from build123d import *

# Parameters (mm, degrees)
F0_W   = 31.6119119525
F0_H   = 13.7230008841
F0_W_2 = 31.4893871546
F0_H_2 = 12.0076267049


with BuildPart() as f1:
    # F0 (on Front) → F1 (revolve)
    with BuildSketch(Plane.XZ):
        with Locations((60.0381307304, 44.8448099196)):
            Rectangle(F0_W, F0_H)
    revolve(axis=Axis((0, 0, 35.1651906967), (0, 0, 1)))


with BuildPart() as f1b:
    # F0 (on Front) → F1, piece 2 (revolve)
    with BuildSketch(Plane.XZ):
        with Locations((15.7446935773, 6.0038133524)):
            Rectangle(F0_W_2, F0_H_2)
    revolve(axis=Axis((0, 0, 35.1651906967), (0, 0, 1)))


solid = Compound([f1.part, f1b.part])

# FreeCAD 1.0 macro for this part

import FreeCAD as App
import Part
import Sketcher


def add_polygon(sketch, points):
    """Adds a closed chain of lines whose ends are joined by coincident constraints."""
    first, n = sketch.GeometryCount, len(points)
    for a, b in zip(points, points[1:] + points[:1]):
        sketch.addGeometry(Part.LineSegment(App.Vector(*a, 0), App.Vector(*b, 0)), False)
    for i in range(n):
        sketch.addConstraint(Sketcher.Constraint("Coincident", first + i, 2, first + (i + 1) % n, 1))

doc = App.newDocument("Part")
body = doc.addObject("PartDesign::Body", "Body")

sketch1 = body.newObject("Sketcher::SketchObject", "Sketch")
sketch1.AttachmentSupport = (doc.getObject("XZ_Plane"), [""])
sketch1.MapMode = "FlatFace"
add_polygon(sketch1, [(44, 52), (44, 38), (76, 38), (76, 52)])
sketch1.addConstraint([
    Sketcher.Constraint("Vertical", 0),
    Sketcher.Constraint("Horizontal", 1),
    Sketcher.Constraint("Vertical", 2),
    Sketcher.Constraint("Horizontal", 3),
    Sketcher.Constraint("DistanceY", 0, 2, 0, 1, 13.723001),
    Sketcher.Constraint("DistanceX", 1, 1, 1, 2, 31.611912),
    Sketcher.Constraint("DistanceY", -1, 1, 0, 2, 37.983309),
    Sketcher.Constraint("DistanceX", -1, 1, 0, 2, 44.232175),
])
revolution = body.newObject("PartDesign::Revolution", "Revolution")
revolution.Profile = sketch1
revolution.ReferenceAxis = (sketch1, ["V_Axis"])
revolution.Angle = 360
body2 = doc.addObject("PartDesign::Body", "Body001")

sketch2 = body2.newObject("Sketcher::SketchObject", "Sketch001")
sketch2.AttachmentSupport = (doc.getObject("XZ_Plane001"), [""])
sketch2.MapMode = "FlatFace"
add_polygon(sketch2, [(0, 12), (0, 0), (31, 0), (31, 12)])
sketch2.addConstraint([
    Sketcher.Constraint("Vertical", 0),
    Sketcher.Constraint("Horizontal", 1),
    Sketcher.Constraint("Vertical", 2),
    Sketcher.Constraint("Horizontal", 3),
    Sketcher.Constraint("Coincident", 0, 2, -1, 1),
    Sketcher.Constraint("DistanceX", 1, 1, 1, 2, 31.489387),
    Sketcher.Constraint("DistanceY", 0, 2, 0, 1, 12.007627),
])
revolution2 = body2.newObject("PartDesign::Revolution", "Revolution001")
revolution2.Profile = sketch2
revolution2.ReferenceAxis = (sketch2, ["V_Axis"])
revolution2.Angle = 360

doc.recompute()
